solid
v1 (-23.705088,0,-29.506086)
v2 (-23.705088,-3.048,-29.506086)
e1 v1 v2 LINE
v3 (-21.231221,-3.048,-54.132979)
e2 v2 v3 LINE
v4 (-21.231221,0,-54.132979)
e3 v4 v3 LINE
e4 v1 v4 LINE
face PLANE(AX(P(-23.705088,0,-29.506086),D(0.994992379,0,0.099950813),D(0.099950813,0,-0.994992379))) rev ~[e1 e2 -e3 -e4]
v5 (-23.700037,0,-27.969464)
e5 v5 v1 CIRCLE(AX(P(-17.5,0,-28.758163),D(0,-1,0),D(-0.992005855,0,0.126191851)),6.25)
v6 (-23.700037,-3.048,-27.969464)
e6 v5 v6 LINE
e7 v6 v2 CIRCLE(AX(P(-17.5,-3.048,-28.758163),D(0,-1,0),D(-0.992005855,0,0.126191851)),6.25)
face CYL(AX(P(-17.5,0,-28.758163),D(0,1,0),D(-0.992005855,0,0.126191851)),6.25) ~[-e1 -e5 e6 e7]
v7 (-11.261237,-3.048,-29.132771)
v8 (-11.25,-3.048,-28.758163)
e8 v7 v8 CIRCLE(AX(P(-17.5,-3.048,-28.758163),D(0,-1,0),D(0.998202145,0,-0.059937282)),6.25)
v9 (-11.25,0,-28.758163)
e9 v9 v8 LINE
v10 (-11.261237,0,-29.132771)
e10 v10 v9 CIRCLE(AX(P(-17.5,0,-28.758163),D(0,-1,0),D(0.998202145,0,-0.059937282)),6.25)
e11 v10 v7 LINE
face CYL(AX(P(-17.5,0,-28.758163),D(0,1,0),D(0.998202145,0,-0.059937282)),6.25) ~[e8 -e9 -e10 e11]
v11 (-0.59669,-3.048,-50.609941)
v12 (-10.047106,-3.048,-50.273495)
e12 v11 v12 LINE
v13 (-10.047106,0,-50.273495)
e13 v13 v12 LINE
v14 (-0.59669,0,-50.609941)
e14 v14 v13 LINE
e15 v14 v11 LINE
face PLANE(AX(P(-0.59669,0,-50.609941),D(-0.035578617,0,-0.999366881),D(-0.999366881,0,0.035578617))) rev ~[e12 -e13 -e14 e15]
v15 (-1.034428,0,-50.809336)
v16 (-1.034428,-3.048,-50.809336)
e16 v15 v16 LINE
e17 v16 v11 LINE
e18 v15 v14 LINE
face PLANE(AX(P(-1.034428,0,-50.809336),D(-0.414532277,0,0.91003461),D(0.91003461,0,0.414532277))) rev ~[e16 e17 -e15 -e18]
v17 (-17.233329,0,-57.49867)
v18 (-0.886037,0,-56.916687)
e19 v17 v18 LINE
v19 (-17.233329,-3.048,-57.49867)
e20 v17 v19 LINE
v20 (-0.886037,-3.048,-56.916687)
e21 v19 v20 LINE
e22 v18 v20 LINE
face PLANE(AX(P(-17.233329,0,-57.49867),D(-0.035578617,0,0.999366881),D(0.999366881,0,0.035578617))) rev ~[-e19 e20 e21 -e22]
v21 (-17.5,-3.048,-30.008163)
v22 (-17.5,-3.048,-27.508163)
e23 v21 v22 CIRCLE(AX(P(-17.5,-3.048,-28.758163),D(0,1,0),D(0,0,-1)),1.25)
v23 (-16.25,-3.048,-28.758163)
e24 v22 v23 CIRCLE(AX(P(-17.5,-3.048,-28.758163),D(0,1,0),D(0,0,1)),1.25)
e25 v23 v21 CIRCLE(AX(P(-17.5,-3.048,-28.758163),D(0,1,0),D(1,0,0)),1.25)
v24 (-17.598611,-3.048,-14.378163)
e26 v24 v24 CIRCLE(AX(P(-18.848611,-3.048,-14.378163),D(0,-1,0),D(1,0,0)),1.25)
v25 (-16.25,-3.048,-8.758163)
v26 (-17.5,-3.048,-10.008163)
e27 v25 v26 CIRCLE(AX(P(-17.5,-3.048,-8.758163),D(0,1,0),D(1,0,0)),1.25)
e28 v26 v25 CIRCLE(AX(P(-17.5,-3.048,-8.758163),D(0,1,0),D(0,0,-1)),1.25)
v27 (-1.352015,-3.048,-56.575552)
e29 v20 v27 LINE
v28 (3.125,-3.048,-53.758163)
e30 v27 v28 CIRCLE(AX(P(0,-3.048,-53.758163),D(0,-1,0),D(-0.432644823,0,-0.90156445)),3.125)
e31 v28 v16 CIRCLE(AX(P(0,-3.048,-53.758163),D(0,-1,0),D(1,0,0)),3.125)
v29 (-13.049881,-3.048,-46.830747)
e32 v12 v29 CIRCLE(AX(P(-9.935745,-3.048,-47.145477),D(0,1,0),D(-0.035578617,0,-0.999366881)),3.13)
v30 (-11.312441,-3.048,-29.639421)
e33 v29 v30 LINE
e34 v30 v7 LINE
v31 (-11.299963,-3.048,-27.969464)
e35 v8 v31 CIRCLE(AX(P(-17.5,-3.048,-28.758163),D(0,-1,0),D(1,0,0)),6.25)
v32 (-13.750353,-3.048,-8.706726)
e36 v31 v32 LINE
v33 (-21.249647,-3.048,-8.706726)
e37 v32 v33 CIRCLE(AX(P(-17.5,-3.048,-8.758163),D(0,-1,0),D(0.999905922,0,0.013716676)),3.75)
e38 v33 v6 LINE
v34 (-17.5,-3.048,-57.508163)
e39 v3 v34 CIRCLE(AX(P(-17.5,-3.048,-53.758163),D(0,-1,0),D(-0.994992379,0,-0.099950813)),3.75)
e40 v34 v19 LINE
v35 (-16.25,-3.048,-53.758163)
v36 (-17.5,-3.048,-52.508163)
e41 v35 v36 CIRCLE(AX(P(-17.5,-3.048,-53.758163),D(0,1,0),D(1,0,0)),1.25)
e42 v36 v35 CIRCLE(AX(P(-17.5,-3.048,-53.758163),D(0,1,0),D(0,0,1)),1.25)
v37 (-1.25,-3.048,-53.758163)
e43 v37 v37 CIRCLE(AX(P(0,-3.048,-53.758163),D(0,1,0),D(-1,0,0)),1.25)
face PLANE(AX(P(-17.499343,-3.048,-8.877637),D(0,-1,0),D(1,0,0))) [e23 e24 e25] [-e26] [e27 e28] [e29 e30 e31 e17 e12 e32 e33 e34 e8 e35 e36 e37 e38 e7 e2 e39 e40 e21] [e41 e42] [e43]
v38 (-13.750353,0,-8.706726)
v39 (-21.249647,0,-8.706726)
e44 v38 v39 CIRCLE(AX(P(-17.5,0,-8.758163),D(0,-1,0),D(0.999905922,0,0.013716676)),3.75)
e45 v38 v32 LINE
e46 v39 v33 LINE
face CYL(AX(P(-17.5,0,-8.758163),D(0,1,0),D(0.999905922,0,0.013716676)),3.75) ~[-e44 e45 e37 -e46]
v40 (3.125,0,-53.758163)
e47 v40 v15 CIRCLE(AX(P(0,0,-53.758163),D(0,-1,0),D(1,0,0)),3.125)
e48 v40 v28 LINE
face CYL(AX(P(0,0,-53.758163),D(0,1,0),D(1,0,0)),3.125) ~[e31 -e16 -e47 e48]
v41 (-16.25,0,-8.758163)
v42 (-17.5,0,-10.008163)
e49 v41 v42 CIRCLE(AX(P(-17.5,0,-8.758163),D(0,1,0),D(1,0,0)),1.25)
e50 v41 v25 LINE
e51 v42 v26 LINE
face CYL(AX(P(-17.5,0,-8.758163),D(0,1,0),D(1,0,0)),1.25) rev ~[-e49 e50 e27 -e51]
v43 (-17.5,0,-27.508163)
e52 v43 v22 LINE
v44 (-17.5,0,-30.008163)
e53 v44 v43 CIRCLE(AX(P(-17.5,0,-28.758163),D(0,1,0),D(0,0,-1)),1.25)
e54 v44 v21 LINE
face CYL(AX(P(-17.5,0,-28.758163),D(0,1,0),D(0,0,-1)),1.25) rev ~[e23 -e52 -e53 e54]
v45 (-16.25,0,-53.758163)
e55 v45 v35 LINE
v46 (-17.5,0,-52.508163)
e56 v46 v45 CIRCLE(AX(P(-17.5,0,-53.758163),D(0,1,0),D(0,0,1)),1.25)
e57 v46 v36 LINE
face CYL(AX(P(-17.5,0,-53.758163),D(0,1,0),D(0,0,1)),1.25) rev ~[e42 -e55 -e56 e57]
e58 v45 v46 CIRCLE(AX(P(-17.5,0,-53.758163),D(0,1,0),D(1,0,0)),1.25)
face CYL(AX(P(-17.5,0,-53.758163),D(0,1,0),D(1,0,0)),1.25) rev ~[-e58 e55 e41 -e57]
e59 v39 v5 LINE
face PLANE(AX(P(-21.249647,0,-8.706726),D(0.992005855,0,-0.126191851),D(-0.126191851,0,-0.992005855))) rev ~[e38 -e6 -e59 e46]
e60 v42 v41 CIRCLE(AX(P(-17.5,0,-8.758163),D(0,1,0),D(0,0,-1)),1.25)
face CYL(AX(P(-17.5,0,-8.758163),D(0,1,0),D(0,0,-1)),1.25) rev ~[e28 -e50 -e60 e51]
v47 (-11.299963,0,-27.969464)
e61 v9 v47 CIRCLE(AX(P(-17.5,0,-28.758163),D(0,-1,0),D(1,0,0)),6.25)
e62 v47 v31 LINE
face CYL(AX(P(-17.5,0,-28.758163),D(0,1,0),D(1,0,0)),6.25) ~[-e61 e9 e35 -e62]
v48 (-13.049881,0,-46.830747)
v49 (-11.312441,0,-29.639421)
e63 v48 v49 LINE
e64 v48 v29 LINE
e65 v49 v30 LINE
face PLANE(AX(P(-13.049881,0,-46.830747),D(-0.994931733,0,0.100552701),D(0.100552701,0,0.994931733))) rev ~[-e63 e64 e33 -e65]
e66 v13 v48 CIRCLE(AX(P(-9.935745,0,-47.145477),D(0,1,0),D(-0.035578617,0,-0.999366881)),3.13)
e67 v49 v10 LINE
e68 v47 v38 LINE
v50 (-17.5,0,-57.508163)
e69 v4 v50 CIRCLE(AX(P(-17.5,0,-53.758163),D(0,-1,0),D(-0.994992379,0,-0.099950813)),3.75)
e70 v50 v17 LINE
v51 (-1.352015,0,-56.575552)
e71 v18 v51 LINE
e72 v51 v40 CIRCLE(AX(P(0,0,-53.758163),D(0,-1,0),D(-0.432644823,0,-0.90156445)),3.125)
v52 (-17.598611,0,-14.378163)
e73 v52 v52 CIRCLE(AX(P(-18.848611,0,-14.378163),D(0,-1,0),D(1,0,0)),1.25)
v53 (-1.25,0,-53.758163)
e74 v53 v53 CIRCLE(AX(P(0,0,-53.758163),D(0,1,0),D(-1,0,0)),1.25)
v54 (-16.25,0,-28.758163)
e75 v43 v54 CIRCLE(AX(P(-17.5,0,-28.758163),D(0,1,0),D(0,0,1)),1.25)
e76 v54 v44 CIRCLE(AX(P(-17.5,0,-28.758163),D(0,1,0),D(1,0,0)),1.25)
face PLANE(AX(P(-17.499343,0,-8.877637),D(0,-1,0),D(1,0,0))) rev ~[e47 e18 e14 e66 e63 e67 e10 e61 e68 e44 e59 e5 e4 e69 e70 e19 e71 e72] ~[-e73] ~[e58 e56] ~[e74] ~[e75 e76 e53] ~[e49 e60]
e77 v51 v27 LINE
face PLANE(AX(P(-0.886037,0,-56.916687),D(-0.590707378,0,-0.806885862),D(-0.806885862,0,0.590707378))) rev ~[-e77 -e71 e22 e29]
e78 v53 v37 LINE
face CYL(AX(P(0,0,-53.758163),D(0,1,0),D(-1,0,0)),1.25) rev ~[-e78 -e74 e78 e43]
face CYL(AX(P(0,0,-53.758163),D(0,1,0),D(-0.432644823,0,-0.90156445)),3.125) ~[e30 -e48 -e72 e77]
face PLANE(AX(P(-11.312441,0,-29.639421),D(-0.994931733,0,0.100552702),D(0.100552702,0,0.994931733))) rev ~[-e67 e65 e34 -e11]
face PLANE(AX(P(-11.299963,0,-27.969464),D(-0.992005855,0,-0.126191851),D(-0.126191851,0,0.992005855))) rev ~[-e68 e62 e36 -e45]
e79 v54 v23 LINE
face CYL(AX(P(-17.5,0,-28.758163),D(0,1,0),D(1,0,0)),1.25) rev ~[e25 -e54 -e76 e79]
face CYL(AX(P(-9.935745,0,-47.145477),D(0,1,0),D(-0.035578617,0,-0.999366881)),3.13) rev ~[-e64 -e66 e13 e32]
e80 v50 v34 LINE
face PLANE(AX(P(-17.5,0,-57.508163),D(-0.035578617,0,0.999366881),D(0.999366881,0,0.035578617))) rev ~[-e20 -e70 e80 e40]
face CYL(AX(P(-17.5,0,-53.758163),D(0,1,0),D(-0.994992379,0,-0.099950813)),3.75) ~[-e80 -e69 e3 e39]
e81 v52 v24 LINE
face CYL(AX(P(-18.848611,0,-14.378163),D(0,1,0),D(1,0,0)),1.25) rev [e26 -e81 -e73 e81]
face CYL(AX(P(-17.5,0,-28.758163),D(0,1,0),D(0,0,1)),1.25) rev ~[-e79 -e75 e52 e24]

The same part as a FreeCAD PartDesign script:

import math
import FreeCAD as App
import Part
import Sketcher
Q = App.Units.Quantity

doc = App.newDocument("Part")
body = doc.addObject("PartDesign::Body", "Body")

# Sketch on XZ plane
sketch1 = body.newObject("Sketcher::SketchObject", "Sketch")
sketch1.AttachmentSupport = (doc.getObject("XZ_Plane"), [""])
sketch1.MapMode = "FlatFace"
sketch1.addGeometry([
    Part.ArcOfCircle(Part.Circle(App.Vector(-17.5, -8.758163, 0), App.Vector(0, 0, 1), 3.75), math.radians(0.785932), math.radians(179.214068)),  # 0
    Part.LineSegment(App.Vector(-21.249647, -8.706726, 0), App.Vector(-23.700037, -27.969464, 0)),  # 1
    Part.ArcOfCircle(Part.Circle(App.Vector(-17.5, -28.758163, 0), App.Vector(0, 0, 1), 6.25), math.radians(172.750411), math.radians(186.872919)),  # 2
    Part.LineSegment(App.Vector(-23.705088, -29.506086, 0), App.Vector(-21.231221, -54.132979, 0)),  # 3
    Part.ArcOfCircle(Part.Circle(App.Vector(-17.5, -53.758163, 0), App.Vector(0, 0, 1), 3.75), math.radians(-174.263662), math.radians(-90)),  # 4
    Part.LineSegment(App.Vector(-17.5, -57.508163, 0), App.Vector(-17.233329, -57.49867, 0)),  # 5
    Part.LineSegment(App.Vector(-17.233329, -57.49867, 0), App.Vector(-0.886037, -56.916687, 0)),  # 6
    Part.LineSegment(App.Vector(-0.886037, -56.916687, 0), App.Vector(-1.352015, -56.575552, 0)),  # 7
    Part.ArcOfCircle(Part.Circle(App.Vector(0, -53.758163, 0), App.Vector(0, 0, 1), 3.125), math.radians(-115.635525), math.radians(0)),  # 8
    Part.ArcOfCircle(Part.Circle(App.Vector(0, -53.758163, 0), App.Vector(0, 0, 1), 3.125), math.radians(0), math.radians(109.330522)),  # 9
    Part.LineSegment(App.Vector(-1.034428, -50.809336, 0), App.Vector(-0.59669, -50.609941, 0)),  # 10
    Part.LineSegment(App.Vector(-0.59669, -50.609941, 0), App.Vector(-10.047106, -50.273495, 0)),  # 11
    Part.ArcOfCircle(Part.Circle(App.Vector(-9.935745, -47.145477, 0), App.Vector(0, 0, 1), 3.13), math.radians(174.229002), math.radians(267.961065)),  # 12
    Part.LineSegment(App.Vector(-13.049881, -46.830747, 0), App.Vector(-11.312441, -29.639421, 0)),  # 13
    Part.LineSegment(App.Vector(-11.312441, -29.639421, 0), App.Vector(-11.261237, -29.132771, 0)),  # 14
    Part.ArcOfCircle(Part.Circle(App.Vector(-17.5, -28.758163, 0), App.Vector(0, 0, 1), 6.25), math.radians(-3.436213), math.radians(0)),  # 15
    Part.ArcOfCircle(Part.Circle(App.Vector(-17.5, -28.758163, 0), App.Vector(0, 0, 1), 6.25), math.radians(0), math.radians(7.249589)),  # 16
    Part.LineSegment(App.Vector(-11.299963, -27.969464, 0), App.Vector(-13.750353, -8.706726, 0)),  # 17
    Part.ArcOfCircle(Part.Circle(App.Vector(-17.5, -53.758163, 0), App.Vector(0, 0, 1), 1.25), math.radians(0), math.radians(90)),  # 18
    Part.ArcOfCircle(Part.Circle(App.Vector(-17.5, -53.758163, 0), App.Vector(0, 0, 1), 1.25), math.radians(90), math.radians(360)),  # 19
    Part.Circle(App.Vector(0, -53.758163, 0), App.Vector(0, 0, 1), 1.25),  # 20
    Part.ArcOfCircle(Part.Circle(App.Vector(-17.5, -28.758163, 0), App.Vector(0, 0, 1), 1.25), math.radians(90), math.radians(270)),  # 21
    Part.ArcOfCircle(Part.Circle(App.Vector(-17.5, -28.758163, 0), App.Vector(0, 0, 1), 1.25), math.radians(0), math.radians(90)),  # 22
    Part.ArcOfCircle(Part.Circle(App.Vector(-17.5, -28.758163, 0), App.Vector(0, 0, 1), 1.25), math.radians(-90), math.radians(0)),  # 23
    Part.Circle(App.Vector(-18.848611, -14.378163, 0), App.Vector(0, 0, 1), 1.25),  # 24
    Part.ArcOfCircle(Part.Circle(App.Vector(-17.5, -8.758163, 0), App.Vector(0, 0, 1), 1.25), math.radians(0), math.radians(270)),  # 25
    Part.ArcOfCircle(Part.Circle(App.Vector(-17.5, -8.758163, 0), App.Vector(0, 0, 1), 1.25), math.radians(-90), math.radians(0)),  # 26
], False)
sketch1.addConstraint([
    Sketcher.Constraint("Coincident", 0, 2, 1, 1),
    Sketcher.Constraint("Coincident", 1, 2, 2, 1),
    Sketcher.Constraint("Coincident", 2, 2, 3, 1),
    Sketcher.Constraint("Coincident", 3, 2, 4, 1),
    Sketcher.Constraint("Coincident", 4, 2, 5, 1),
    Sketcher.Constraint("Coincident", 5, 2, 6, 1),
    Sketcher.Constraint("Coincident", 6, 2, 7, 1),
    Sketcher.Constraint("Coincident", 7, 2, 8, 1),
    Sketcher.Constraint("Coincident", 8, 2, 9, 1),
    Sketcher.Constraint("Coincident", 9, 2, 10, 1),
    Sketcher.Constraint("Coincident", 10, 2, 11, 1),
    Sketcher.Constraint("Coincident", 11, 2, 12, 2),
    Sketcher.Constraint("Coincident", 12, 1, 13, 1),
    Sketcher.Constraint("Coincident", 13, 2, 14, 1),
    Sketcher.Constraint("Coincident", 14, 2, 15, 1),
    Sketcher.Constraint("Coincident", 15, 2, 16, 1),
    Sketcher.Constraint("Coincident", 16, 2, 17, 1),
    Sketcher.Constraint("Coincident", 17, 2, 0, 1),
    Sketcher.Constraint("Coincident", 18, 1, 19, 2),
    Sketcher.Constraint("Coincident", 19, 1, 18, 2),
    Sketcher.Constraint("Coincident", 21, 1, 22, 2),
    Sketcher.Constraint("Coincident", 22, 1, 23, 2),
    Sketcher.Constraint("Coincident", 23, 1, 21, 2),
    Sketcher.Constraint("Coincident", 25, 1, 26, 2),
    Sketcher.Constraint("Coincident", 26, 1, 25, 2),
    Sketcher.Constraint("Coincident", 9, 3, 8, 3),
    Sketcher.Constraint("Coincident", 15, 3, 2, 3),
    Sketcher.Constraint("Coincident", 16, 3, 2, 3),
    Sketcher.Constraint("Coincident", 18, 3, 4, 3),
    Sketcher.Constraint("Coincident", 20, 3, 8, 3),
    Sketcher.Constraint("Coincident", 21, 3, 2, 3),
    Sketcher.Constraint("Coincident", 22, 3, 2, 3),
    Sketcher.Constraint("Coincident", 25, 3, 0, 3),
    Sketcher.Constraint("PointOnObject", 8, 3, -2),
    Sketcher.Constraint("Diameter", 20, Q("2.5 mm")),
    Sketcher.Constraint("Diameter", 24, Q("2.5 mm")),
    Sketcher.Constraint("Radius", 0, Q("3.75 mm")),
    Sketcher.Constraint("Radius", 2, Q("6.25 mm")),
    Sketcher.Constraint("Radius", 4, Q("3.75 mm")),
    Sketcher.Constraint("Radius", 12, Q("3.13 mm")),
    Sketcher.Constraint("Radius", 15, Q("6.25 mm")),
    Sketcher.Constraint("Radius", 18, Q("1.25 mm")),
    Sketcher.Constraint("Radius", 19, Q("1.25 mm")),
    Sketcher.Constraint("Radius", 21, Q("1.25 mm")),
    Sketcher.Constraint("Radius", 23, Q("1.25 mm")),
    Sketcher.Constraint("Radius", 25, Q("1.25 mm")),
    Sketcher.Constraint("Radius", 26, Q("1.25 mm")),
    Sketcher.Constraint("Radius", 8, Q("3.125 mm")),
    Sketcher.Constraint("DistanceY", 2, 3, 0, 3, Q("20 mm")),
    Sketcher.Constraint("DistanceY", 4, 3, 2, 3, Q("25 mm")),
    Sketcher.Constraint("DistanceY", 8, 3, 2, 3, Q("25 mm")),
    Sketcher.Constraint("DistanceX", 0, 3, -1, 1, Q("17.5 mm")),
    Sketcher.Constraint("DistanceX", 2, 3, -1, 1, Q("17.5 mm")),
    Sketcher.Constraint("DistanceX", 4, 3, -1, 1, Q("17.5 mm")),
    Sketcher.Constraint("DistanceX", 4, 2, -1, 1, Q("17.5 mm")),
    Sketcher.Constraint("DistanceX", 19, 1, -1, 1, Q("17.5 mm")),
    Sketcher.Constraint("DistanceX", 21, 1, -1, 1, Q("17.5 mm")),
    Sketcher.Constraint("DistanceX", 23, 1, -1, 1, Q("17.5 mm")),
    Sketcher.Constraint("DistanceX", 26, 1, -1, 1, Q("17.5 mm")),
    Sketcher.Constraint("DistanceY", 24, 3, 0, 3, Q("5.62 mm")),
    Sketcher.Constraint("DistanceY", 4, 2, 18, 1, Q("3.75 mm")),
    Sketcher.Constraint("DistanceY", 26, 1, 25, 1, Q("1.25 mm")),
    Sketcher.Constraint("Distance", 13, Q("17.2789 mm")),
    Sketcher.Constraint("DistanceY", 16, 3, 1, 2, Q("0.788699 mm")),
    Sketcher.Constraint("DistanceY", 15, 2, 16, 2, Q("0.788699 mm")),
    Sketcher.Constraint("DistanceY", 15, 3, 16, 2, Q("0.788699 mm")),
    Sketcher.Constraint("Distance", 1, Q("19.417969 mm")),
    Sketcher.Constraint("Distance", 5, Q("0.26684 mm")),
    Sketcher.Constraint("Distance", 6, Q("16.357649 mm")),
    Sketcher.Constraint("Distance", 14, Q("0.50923 mm")),
    Sketcher.Constraint("Distance", 17, Q("19.417969 mm")),
    Sketcher.Constraint("DistanceX", 24, 3, -1, 1, Q("18.848611 mm")),
    Sketcher.Constraint("DistanceX", 3, 2, -1, 1, Q("21.231221 mm")),
    Sketcher.Constraint("DistanceY", 3, 2, -1, 1, Q("54.132979 mm")),
    Sketcher.Constraint("DistanceX", 5, 2, -1, 1, Q("17.233329 mm")),
    Sketcher.Constraint("DistanceX", 9, 2, -1, 1, Q("1.034428 mm")),
    Sketcher.Constraint("DistanceX", 10, 2, -1, 1, Q("0.59669 mm")),
    Sketcher.Constraint("DistanceY", 10, 2, -1, 1, Q("50.609941 mm")),
    Sketcher.Constraint("DistanceX", 12, 1, -1, 1, Q("13.049881 mm")),
    Sketcher.Constraint("DistanceX", 13, 2, -1, 1, Q("11.312441 mm")),
    Sketcher.Constraint("DistanceY", 13, 2, -1, 1, Q("29.639421 mm")),
    Sketcher.Constraint("DistanceX", 2, 2, 1, 2, Q("0.005051 mm")),
    Sketcher.Constraint("DistanceX", 12, 3, 6, 2, Q("9.049708 mm")),
    Sketcher.Constraint("DistanceY", 6, 2, 12, 3, Q("9.77121 mm")),
    Sketcher.Constraint("DistanceX", 7, 2, 6, 2, Q("0.465978 mm")),
    Sketcher.Constraint("DistanceY", 7, 2, 8, 2, Q("2.817389 mm")),
    Sketcher.Constraint("DistanceX", 11, 2, 12, 3, Q("0.111361 mm")),
    Sketcher.Constraint("DistanceY", 22, 1, -1, 1, Q("28.758163 mm")),
])
pad1 = body.newObject("PartDesign::Pad", "Pad")
pad1.Profile = sketch1
pad1.Length = 3.048

doc.recompute()
